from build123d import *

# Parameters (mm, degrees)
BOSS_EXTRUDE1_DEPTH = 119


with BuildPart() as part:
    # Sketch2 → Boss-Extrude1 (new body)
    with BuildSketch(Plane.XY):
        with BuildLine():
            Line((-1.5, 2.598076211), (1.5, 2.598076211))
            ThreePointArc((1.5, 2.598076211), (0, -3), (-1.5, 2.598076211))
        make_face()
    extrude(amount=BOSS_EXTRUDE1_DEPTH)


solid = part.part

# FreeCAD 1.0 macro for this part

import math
import FreeCAD as App
import Part
import Sketcher
Q = App.Units.Quantity

doc = App.newDocument("Part")
params = doc.addObject("Spreadsheet::Sheet", "Params")
for row, (alias, value) in enumerate([
    ("sketch1_radius", "3 mm"),
    ("sketch1_width", "3 mm"),
    ("pad1_length", "119 mm"),
], start=1):
    params.set(f"A{row}", alias)
    params.set(f"B{row}", "=" + value)
    params.setAlias(f"B{row}", alias)

body = doc.addObject("PartDesign::Body", "Body")

# Sketch on XY plane
sketch1 = body.newObject("Sketcher::SketchObject", "Sketch")
sketch1.AttachmentSupport = (doc.getObject("XY_Plane"), [""])
sketch1.MapMode = "FlatFace"
sketch1.addGeometry([
    Part.LineSegment(App.Vector(1.5, 2.598076, 0), App.Vector(-1.5, 2.598076, 0)),
    Part.ArcOfCircle(Part.Circle(App.Vector(0, 0, 0), App.Vector(0, 0, 1), 3), math.radians(120), math.radians(420)),
], False)
sketch1.addConstraint([
    Sketcher.Constraint("Coincident", 0, 1, 1, 2),
    Sketcher.Constraint("Coincident", 1, 1, 0, 2),
    Sketcher.Constraint("Horizontal", 0),
    Sketcher.Constraint("Coincident", 1, 3, -1, 1),
    Sketcher.Constraint("Radius", 1, Q("3 mm")),
    Sketcher.Constraint("DistanceX", 0, 2, 0, 1, Q("3 mm")),
])
sketch1.setExpression("Constraints[4]", "Params.sketch1_radius")
sketch1.setExpression("Constraints[5]", "Params.sketch1_width")
pad1 = body.newObject("PartDesign::Pad", "Pad")
pad1.Profile = sketch1
pad1.setExpression("Length", "Params.pad1_length")

doc.recompute()
